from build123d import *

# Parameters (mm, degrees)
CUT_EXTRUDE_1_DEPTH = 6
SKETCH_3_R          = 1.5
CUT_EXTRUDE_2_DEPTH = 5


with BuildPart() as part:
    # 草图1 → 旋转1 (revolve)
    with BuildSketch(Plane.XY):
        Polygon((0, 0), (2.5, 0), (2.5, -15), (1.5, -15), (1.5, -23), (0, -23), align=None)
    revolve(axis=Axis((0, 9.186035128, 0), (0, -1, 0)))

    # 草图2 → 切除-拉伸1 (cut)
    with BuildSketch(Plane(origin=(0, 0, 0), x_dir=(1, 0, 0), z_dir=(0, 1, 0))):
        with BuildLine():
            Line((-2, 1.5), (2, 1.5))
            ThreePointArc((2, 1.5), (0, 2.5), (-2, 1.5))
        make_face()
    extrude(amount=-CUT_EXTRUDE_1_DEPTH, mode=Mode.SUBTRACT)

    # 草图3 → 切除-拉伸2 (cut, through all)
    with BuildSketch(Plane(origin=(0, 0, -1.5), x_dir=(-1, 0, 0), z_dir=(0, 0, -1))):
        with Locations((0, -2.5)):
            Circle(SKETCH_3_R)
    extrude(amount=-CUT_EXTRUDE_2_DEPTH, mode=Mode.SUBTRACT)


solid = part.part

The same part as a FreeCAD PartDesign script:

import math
import FreeCAD as App
import Part
import Sketcher
from FreeCAD import Vector
Q = App.Units.Quantity

doc = App.newDocument("Part")
body = doc.addObject("PartDesign::Body", "Body")

sketch1 = body.newObject("Sketcher::SketchObject", "Sketch")
sketch1.AttachmentSupport = (doc.getObject("XY_Plane"), [""])
sketch1.MapMode = "FlatFace"
sketch1.addGeometry(Part.LineSegment(Vector(2.5, 0, 0), Vector(0, 0, 0)), False)
sketch1.addGeometry(Part.LineSegment(Vector(0, 0, 0), Vector(0, -23, 0)), False)
sketch1.addGeometry(Part.LineSegment(Vector(0, -23, 0), Vector(1.5, -23, 0)), False)
sketch1.addGeometry(Part.LineSegment(Vector(1.5, -23, 0), Vector(1.5, -15, 0)), False)
sketch1.addGeometry(Part.LineSegment(Vector(1.5, -15, 0), Vector(2.5, -15, 0)), False)
sketch1.addGeometry(Part.LineSegment(Vector(2.5, -15, 0), Vector(2.5, 0, 0)), False)
sketch1.addConstraint(Sketcher.Constraint("Coincident", 0, 2, 1, 1))
sketch1.addConstraint(Sketcher.Constraint("Coincident", 1, 2, 2, 1))
sketch1.addConstraint(Sketcher.Constraint("Coincident", 2, 2, 3, 1))
sketch1.addConstraint(Sketcher.Constraint("Coincident", 3, 2, 4, 1))
sketch1.addConstraint(Sketcher.Constraint("Coincident", 4, 2, 5, 1))
sketch1.addConstraint(Sketcher.Constraint("Coincident", 5, 2, 0, 1))
sketch1.addConstraint(Sketcher.Constraint("Horizontal", 0))
sketch1.addConstraint(Sketcher.Constraint("Vertical", 1))
sketch1.addConstraint(Sketcher.Constraint("Horizontal", 2))
sketch1.addConstraint(Sketcher.Constraint("Vertical", 3))
sketch1.addConstraint(Sketcher.Constraint("Horizontal", 4))
sketch1.addConstraint(Sketcher.Constraint("Vertical", 5))
sketch1.addConstraint(Sketcher.Constraint("Coincident", 0, 2, -1, 1))
sketch1.addConstraint(Sketcher.Constraint("DistanceX", 4, 1, 4, 2, Q("1 mm")))
sketch1.addConstraint(Sketcher.Constraint("DistanceY", 1, 2, 1, 1, Q("23 mm")))
sketch1.addConstraint(Sketcher.Constraint("DistanceY", 3, 1, 3, 2, Q("8 mm")))
sketch1.addConstraint(Sketcher.Constraint("DistanceX", 0, 2, 0, 1, Q("2.5 mm")))
revolution = body.newObject("PartDesign::Revolution", "Revolution")
revolution.Profile = sketch1
revolution.ReferenceAxis = (sketch1, ["V_Axis"])
revolution.Angle = 360

sketch2 = body.newObject("Sketcher::SketchObject", "Sketch001")
sketch2.AttachmentSupport = (doc.getObject("XZ_Plane"), [""])
sketch2.MapMode = "FlatFace"
sketch2.addGeometry(Part.LineSegment(Vector(-2, -1.5, 0), Vector(2, -1.5, 0)), False)
sketch2.addGeometry(Part.ArcOfCircle(Part.Circle(Vector(0, 0, 0), Vector(0, 0, 1), 2.5), math.radians(-143), math.radians(-37)), False)
sketch2.addConstraint(Sketcher.Constraint("Coincident", 0, 1, 1, 1))
sketch2.addConstraint(Sketcher.Constraint("Coincident", 1, 2, 0, 2))
sketch2.addConstraint(Sketcher.Constraint("Horizontal", 0))
sketch2.addConstraint(Sketcher.Constraint("Coincident", 1, 3, -1, 1))
sketch2.addConstraint(Sketcher.Constraint("Radius", 1, Q("2.5 mm")))
sketch2.addConstraint(Sketcher.Constraint("DistanceX", 0, 1, 0, 2, Q("4 mm")))
pocket1 = body.newObject("PartDesign::Pocket", "Pocket")
pocket1.Profile = sketch2
pocket1.Length = 6
pocket1.Reversed = True

sketch3 = body.newObject("Sketcher::SketchObject", "Sketch002")
sketch3.AttachmentSupport = (doc.getObject("XY_Plane"), [""])
sketch3.MapMode = "FlatFace"
sketch3.AttachmentOffset = App.Placement(Vector(0, 0, -1.5), App.Rotation())
sketch3.addGeometry(Part.Circle(Vector(0, -2.5, 0), Vector(0, 0, 1), 1.5), False)
sketch3.addConstraint(Sketcher.Constraint("PointOnObject", 0, 3, -2))
sketch3.addConstraint(Sketcher.Constraint("Diameter", 0, Q("3 mm")))
sketch3.addConstraint(Sketcher.Constraint("DistanceY", 0, 3, -1, 1, Q("2.5 mm")))
pocket2 = body.newObject("PartDesign::Pocket", "Pocket001")
pocket2.Profile = sketch3
pocket2.Type = "ThroughAll"
pocket2.Reversed = True

doc.recompute()
